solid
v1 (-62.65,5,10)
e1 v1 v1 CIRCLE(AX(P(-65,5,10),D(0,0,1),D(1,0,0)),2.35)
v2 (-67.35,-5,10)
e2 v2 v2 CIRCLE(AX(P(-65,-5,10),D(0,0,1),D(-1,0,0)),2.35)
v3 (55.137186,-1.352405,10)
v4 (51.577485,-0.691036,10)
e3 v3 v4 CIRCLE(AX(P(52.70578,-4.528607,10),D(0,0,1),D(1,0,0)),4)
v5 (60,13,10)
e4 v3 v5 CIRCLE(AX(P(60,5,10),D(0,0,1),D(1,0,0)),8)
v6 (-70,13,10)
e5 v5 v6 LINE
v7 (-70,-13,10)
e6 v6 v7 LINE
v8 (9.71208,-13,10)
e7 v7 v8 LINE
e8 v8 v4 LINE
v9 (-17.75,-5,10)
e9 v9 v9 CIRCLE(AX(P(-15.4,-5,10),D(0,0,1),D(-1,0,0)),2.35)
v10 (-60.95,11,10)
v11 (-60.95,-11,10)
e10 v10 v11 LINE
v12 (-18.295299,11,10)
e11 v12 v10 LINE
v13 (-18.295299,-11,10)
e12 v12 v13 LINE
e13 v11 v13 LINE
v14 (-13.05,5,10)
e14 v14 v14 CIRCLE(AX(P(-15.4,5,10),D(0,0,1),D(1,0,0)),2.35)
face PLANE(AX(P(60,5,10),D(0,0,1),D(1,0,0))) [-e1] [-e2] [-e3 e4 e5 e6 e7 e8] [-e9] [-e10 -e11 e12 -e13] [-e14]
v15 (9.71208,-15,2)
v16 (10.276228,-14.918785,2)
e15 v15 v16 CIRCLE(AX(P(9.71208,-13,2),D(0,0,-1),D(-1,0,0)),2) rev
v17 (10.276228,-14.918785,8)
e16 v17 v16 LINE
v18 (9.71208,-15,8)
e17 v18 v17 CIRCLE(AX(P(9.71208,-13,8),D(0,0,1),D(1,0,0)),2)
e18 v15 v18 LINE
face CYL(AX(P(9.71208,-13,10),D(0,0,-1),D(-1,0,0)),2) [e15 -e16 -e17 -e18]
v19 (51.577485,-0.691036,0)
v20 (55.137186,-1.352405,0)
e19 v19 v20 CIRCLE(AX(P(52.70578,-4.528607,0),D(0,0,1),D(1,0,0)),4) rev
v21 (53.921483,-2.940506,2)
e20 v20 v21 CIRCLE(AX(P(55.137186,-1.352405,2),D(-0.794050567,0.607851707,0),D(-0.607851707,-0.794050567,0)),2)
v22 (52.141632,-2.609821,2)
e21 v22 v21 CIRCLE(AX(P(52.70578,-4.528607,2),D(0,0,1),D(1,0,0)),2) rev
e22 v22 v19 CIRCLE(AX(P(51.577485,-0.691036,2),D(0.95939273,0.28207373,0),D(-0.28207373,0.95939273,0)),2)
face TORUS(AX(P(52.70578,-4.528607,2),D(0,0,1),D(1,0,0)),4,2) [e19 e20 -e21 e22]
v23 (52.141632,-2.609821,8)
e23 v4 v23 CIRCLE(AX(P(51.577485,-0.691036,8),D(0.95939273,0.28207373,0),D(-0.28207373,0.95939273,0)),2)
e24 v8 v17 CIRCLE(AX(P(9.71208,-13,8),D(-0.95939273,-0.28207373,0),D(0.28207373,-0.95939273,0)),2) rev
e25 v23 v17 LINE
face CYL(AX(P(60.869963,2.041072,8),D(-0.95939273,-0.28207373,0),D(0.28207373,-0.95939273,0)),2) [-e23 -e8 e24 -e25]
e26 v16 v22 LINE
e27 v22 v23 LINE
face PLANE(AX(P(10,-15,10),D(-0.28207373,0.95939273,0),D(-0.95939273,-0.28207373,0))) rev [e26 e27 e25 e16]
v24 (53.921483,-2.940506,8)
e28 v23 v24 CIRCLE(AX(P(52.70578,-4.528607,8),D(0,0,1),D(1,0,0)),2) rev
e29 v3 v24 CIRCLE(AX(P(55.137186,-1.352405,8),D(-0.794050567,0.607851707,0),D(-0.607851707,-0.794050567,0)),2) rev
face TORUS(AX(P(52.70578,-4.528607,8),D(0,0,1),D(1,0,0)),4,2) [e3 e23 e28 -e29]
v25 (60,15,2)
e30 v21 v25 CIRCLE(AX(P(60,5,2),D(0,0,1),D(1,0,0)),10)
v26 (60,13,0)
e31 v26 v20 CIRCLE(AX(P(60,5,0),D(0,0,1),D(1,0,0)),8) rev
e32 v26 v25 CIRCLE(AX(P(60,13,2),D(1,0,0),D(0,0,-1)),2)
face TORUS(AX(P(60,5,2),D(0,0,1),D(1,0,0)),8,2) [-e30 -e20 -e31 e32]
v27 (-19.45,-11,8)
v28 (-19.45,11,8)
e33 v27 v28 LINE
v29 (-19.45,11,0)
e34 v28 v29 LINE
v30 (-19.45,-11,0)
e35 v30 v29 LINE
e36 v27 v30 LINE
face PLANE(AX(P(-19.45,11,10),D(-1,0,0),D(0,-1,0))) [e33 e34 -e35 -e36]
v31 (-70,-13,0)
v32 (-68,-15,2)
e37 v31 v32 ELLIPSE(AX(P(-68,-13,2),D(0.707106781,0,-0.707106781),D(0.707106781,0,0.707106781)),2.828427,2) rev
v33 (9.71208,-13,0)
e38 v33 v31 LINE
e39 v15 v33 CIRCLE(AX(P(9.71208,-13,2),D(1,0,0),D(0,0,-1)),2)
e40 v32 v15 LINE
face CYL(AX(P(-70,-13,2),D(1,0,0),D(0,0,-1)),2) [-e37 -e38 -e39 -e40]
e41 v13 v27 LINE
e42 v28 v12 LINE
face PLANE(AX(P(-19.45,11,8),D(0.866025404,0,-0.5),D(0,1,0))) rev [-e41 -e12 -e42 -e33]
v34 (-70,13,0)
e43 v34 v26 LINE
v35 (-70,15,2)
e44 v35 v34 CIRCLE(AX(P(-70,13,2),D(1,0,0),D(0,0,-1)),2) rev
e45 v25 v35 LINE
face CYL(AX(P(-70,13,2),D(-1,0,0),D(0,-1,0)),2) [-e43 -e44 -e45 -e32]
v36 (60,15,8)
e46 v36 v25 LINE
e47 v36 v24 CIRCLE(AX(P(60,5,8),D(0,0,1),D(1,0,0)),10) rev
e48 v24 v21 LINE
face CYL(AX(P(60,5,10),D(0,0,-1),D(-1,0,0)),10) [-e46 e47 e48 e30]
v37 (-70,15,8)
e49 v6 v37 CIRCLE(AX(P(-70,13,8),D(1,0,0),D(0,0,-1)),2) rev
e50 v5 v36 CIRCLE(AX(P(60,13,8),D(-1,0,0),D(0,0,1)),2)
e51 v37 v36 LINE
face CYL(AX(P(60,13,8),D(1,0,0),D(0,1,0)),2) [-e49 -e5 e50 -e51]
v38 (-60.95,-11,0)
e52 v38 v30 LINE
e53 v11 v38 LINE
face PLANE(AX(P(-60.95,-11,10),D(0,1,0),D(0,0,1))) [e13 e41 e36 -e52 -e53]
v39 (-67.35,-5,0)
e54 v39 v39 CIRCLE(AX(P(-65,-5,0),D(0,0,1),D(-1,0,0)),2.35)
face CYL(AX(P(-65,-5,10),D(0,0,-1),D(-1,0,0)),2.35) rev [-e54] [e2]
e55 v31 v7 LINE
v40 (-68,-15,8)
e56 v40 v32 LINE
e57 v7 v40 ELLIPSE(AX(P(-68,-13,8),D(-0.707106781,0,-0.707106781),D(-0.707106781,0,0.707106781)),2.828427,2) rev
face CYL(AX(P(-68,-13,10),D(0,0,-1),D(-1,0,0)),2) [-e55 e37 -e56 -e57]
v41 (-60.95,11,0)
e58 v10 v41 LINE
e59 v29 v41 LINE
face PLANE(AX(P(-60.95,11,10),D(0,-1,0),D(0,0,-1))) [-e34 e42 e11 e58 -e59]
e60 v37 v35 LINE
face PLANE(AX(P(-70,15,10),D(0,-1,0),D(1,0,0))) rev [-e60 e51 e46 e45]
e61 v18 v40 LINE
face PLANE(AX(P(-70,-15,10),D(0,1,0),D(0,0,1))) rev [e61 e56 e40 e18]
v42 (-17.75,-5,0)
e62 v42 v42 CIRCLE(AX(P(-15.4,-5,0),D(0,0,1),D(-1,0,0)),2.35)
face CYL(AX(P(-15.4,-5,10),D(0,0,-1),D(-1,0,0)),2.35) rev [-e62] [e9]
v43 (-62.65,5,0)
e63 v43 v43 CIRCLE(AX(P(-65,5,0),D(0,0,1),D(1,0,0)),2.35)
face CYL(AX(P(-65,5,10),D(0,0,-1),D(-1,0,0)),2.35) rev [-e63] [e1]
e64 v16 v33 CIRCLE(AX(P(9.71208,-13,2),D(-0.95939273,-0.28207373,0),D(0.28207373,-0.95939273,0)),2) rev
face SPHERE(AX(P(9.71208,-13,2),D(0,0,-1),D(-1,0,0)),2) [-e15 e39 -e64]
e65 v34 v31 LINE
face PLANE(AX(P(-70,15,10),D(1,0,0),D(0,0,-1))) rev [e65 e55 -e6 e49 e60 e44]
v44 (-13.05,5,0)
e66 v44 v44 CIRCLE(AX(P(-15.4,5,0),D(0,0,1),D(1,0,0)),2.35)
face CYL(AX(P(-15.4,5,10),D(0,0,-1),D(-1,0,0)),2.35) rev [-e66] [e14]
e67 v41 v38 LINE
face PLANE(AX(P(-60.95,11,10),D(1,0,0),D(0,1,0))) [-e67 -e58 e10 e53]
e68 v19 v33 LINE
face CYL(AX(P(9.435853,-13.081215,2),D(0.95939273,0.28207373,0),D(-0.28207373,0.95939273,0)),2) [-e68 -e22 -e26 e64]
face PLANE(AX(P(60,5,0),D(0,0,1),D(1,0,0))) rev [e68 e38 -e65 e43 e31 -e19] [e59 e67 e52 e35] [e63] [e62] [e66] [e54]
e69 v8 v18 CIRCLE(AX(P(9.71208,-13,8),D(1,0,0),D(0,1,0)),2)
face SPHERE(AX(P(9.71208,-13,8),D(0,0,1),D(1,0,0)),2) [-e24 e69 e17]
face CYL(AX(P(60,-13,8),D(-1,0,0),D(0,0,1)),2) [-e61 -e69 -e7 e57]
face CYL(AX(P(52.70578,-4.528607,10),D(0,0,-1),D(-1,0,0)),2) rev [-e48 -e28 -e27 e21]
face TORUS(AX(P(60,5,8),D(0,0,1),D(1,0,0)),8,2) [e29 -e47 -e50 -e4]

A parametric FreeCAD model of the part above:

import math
import FreeCAD as App
import Part
import Sketcher


def edges_at(feature, points):
    """Names of the edges that pass closest to the given points."""
    edges = feature.Shape.Edges
    near = lambda p: min(range(len(edges)), key=lambda i: edges[i].distToShape(Part.Vertex(*p))[0])
    return sorted({f"Edge{near(p) + 1}" for p in points})


def add_polygon(sketch, points):
    """Adds a closed chain of lines whose ends are joined by coincident constraints."""
    first, n = sketch.GeometryCount, len(points)
    for a, b in zip(points, points[1:] + points[:1]):
        sketch.addGeometry(Part.LineSegment(App.Vector(*a, 0), App.Vector(*b, 0)), False)
    for i in range(n):
        sketch.addConstraint(Sketcher.Constraint("Coincident", first + i, 2, first + (i + 1) % n, 1))

doc = App.newDocument("Part")
params = doc.addObject("Spreadsheet::Sheet", "Params")
for row, (alias, value) in enumerate([
    ("sketch1_radius", "10 mm"),
    ("sketch1_diameter", "4.7 mm"),
    ("sketch1_width", "130 mm"),
    ("sketch1_width2", "80 mm"),
    ("sketch1_height", "30 mm"),
    ("pad1_length", "10 mm"),
    ("fillet_radius", "2 mm"),
    ("chamfer_size", "2 mm"),
    ("chamfer_size2", "1.154701 mm"),
], start=1):
    params.set(f"A{row}", alias)
    params.set(f"B{row}", "=" + value)
    params.setAlias(f"B{row}", alias)

body = doc.addObject("PartDesign::Body", "Body")

sketch1 = doc.addObject("Sketcher::SketchObject", "Sketch")
body.addObject(sketch1)
sketch1.AttachmentSupport = (doc.XY_Plane, [""])
sketch1.MapMode = "FlatFace"
sketch1.addGeometry(Part.LineSegment(App.Vector(60, 15, 0), App.Vector(-70, 15, 0)), False)
sketch1.addGeometry(Part.LineSegment(App.Vector(-70, 15, 0), App.Vector(-70, -15, 0)), False)
sketch1.addGeometry(Part.LineSegment(App.Vector(-70, -15, 0), App.Vector(10, -15, 0)), False)
sketch1.addGeometry(Part.LineSegment(App.Vector(10, -15, 0), App.Vector(53.2, -2.3, 0)), False)
sketch1.addGeometry(Part.ArcOfCircle(Part.Circle(App.Vector(60, 5, 0), App.Vector(0, 0, 1), 10), math.radians(-133), math.radians(90)), False)
sketch1.addGeometry(Part.Circle(App.Vector(-15.4, -5, 0), App.Vector(0, 0, 1), 2.4), False)
sketch1.addGeometry(Part.Circle(App.Vector(-65, -5, 0), App.Vector(0, 0, 1), 2.4), False)
sketch1.addGeometry(Part.Circle(App.Vector(-15.4, 5, 0), App.Vector(0, 0, 1), 2.4), False)
add_polygon(sketch1, [(-61, -11), (-61, 11), (-19.4, 11), (-19.4, -11)])
sketch1.addGeometry(Part.Circle(App.Vector(-65, 5, 0), App.Vector(0, 0, 1), 2.4), False)
sketch1.addConstraint([
    Sketcher.Constraint("Coincident", 0, 2, 1, 1),
    Sketcher.Constraint("Coincident", 1, 2, 2, 1),
    Sketcher.Constraint("Coincident", 2, 2, 3, 1),
    Sketcher.Constraint("Coincident", 3, 2, 4, 1),
    Sketcher.Constraint("Tangent", 4, 2, 0, 1),
    Sketcher.Constraint("Horizontal", 0),
    Sketcher.Constraint("Vertical", 1),
    Sketcher.Constraint("Horizontal", 2),
    Sketcher.Constraint("Vertical", 8),
    Sketcher.Constraint("Horizontal", 9),
    Sketcher.Constraint("Vertical", 10),
    Sketcher.Constraint("Horizontal", 11),
    Sketcher.Constraint("Equal", 5, 6),
    Sketcher.Constraint("Equal", 6, 7),
    Sketcher.Constraint("Equal", 7, 12),
    Sketcher.Constraint("Symmetric", 5, 3, 7, 3, -1),
    Sketcher.Constraint("Symmetric", 6, 3, 12, 3, -1),
    Sketcher.Constraint("Horizontal", 5, 3, 6, 3),
    Sketcher.Constraint("Horizontal", 4, 3, 7, 3),
    Sketcher.Constraint("Radius", 4, 10.0),
    Sketcher.Constraint("Diameter", 5, 4.7),
    Sketcher.Constraint("DistanceX", 0, 2, 0, 1, 130.0),
    Sketcher.Constraint("DistanceX", 2, 1, 2, 2, 80.0),
    Sketcher.Constraint("DistanceY", 1, 2, 1, 1, 30.0),
    Sketcher.Constraint("DistanceY", 8, 1, 8, 2, 22.0),
    Sketcher.Constraint("Distance", 3, 45.0),
    Sketcher.Constraint("DistanceX", 9, 1, 9, 2, 41.5),
    Sketcher.Constraint("DistanceX", -1, 1, 4, 3, 60.0),
    Sketcher.Constraint("DistanceY", -1, 1, 4, 3, 5.0),
    Sketcher.Constraint("DistanceX", 6, 3, -1, 1, 65.0),
    Sketcher.Constraint("DistanceY", -1, 1, 8, 2, 11.0),
    Sketcher.Constraint("DistanceX", 5, 3, -1, 1, 15.4),
    Sketcher.Constraint("DistanceX", 8, 2, -1, 1, 60.95),
])
sketch1.setExpression("Constraints[23]", "Params.sketch1_radius")
sketch1.setExpression("Constraints[24]", "Params.sketch1_diameter")
sketch1.setExpression("Constraints[25]", "Params.sketch1_width")
sketch1.setExpression("Constraints[26]", "Params.sketch1_width2")
sketch1.setExpression("Constraints[27]", "Params.sketch1_height")
pad1 = doc.addObject("PartDesign::Pad", "Pad")
body.addObject(pad1)
pad1.Profile = sketch1
pad1.setExpression("Length", "Params.pad1_length")
doc.recompute()

fillet = doc.addObject("PartDesign::Fillet", "Fillet")
body.addObject(fillet)
fillet.Base = (pad1, edges_at(pad1, [
    (31.586, -8.653, 10),
    (69.302, 1.33, 10),
    (-5, 15, 10),
    (-5, 15, 0),
    (69.302, 1.33, 0),
    (31.586, -8.653, 0),
    (-30, -15, 0),
    (-30, -15, 10),
    (53.173, -2.307, 5),
    (10, -15, 5),
    (-70, -15, 5),
]))
fillet.setExpression("Radius", "Params.fillet_radius")
doc.recompute()

chamfer = doc.addObject("PartDesign::Chamfer", "Chamfer")
body.addObject(chamfer)
chamfer.Base = (fillet, edges_at(fillet, [(-19.45, 0, 10)]))
chamfer.ChamferType = "Two distances"
chamfer.setExpression("Size", "Params.chamfer_size")
chamfer.setExpression("Size2", "Params.chamfer_size2")
chamfer.FlipDirection = True

doc.recompute()
